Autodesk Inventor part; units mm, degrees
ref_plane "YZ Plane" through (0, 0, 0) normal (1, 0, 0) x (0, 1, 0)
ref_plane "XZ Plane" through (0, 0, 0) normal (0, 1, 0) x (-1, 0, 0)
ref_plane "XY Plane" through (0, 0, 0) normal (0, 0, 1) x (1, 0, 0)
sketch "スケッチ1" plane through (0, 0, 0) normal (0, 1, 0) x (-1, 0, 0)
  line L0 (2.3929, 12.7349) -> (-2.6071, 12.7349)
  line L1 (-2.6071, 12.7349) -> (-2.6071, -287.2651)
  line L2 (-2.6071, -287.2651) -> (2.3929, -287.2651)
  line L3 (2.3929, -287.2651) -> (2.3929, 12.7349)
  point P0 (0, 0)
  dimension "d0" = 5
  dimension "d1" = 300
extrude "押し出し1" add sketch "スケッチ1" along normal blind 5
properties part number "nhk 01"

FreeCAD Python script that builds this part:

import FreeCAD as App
import Part
import Sketcher
Q = App.Units.Quantity


def add_polygon(sketch, points):
    """Adds a closed chain of lines whose ends are joined by coincident constraints."""
    first, n = sketch.GeometryCount, len(points)
    for a, b in zip(points, points[1:] + points[:1]):
        sketch.addGeometry(Part.LineSegment(App.Vector(*a, 0), App.Vector(*b, 0)), False)
    for i in range(n):
        sketch.addConstraint(Sketcher.Constraint("Coincident", first + i, 2, first + (i + 1) % n, 1))

doc = App.newDocument("Part")
body = doc.addObject("PartDesign::Body", "Body")

sketch1 = body.newObject("Sketcher::SketchObject", "Sketch")
sketch1.AttachmentSupport = (doc.getObject("XZ_Plane"), [""])
sketch1.MapMode = "FlatFace"
add_polygon(sketch1, [(-2, -287), (-2, 13), (3, 13), (3, -287)])
sketch1.addConstraint(Sketcher.Constraint("Vertical", 0))
sketch1.addConstraint(Sketcher.Constraint("Horizontal", 1))
sketch1.addConstraint(Sketcher.Constraint("Vertical", 2))
sketch1.addConstraint(Sketcher.Constraint("Horizontal", 3))
sketch1.addConstraint(Sketcher.Constraint("DistanceX", 1, 1, 1, 2, Q("5 mm")))
sketch1.addConstraint(Sketcher.Constraint("DistanceY", 0, 1, 0, 2, Q("300 mm")))
sketch1.addConstraint(Sketcher.Constraint("DistanceX", 0, 2, -1, 1, Q("2.393 mm")))
sketch1.addConstraint(Sketcher.Constraint("DistanceY", -1, 1, 0, 2, Q("12.735 mm")))
pad1 = body.newObject("PartDesign::Pad", "Pad")
pad1.Profile = sketch1
pad1.Length = 5
pad1.Reversed = True

doc.recompute()
